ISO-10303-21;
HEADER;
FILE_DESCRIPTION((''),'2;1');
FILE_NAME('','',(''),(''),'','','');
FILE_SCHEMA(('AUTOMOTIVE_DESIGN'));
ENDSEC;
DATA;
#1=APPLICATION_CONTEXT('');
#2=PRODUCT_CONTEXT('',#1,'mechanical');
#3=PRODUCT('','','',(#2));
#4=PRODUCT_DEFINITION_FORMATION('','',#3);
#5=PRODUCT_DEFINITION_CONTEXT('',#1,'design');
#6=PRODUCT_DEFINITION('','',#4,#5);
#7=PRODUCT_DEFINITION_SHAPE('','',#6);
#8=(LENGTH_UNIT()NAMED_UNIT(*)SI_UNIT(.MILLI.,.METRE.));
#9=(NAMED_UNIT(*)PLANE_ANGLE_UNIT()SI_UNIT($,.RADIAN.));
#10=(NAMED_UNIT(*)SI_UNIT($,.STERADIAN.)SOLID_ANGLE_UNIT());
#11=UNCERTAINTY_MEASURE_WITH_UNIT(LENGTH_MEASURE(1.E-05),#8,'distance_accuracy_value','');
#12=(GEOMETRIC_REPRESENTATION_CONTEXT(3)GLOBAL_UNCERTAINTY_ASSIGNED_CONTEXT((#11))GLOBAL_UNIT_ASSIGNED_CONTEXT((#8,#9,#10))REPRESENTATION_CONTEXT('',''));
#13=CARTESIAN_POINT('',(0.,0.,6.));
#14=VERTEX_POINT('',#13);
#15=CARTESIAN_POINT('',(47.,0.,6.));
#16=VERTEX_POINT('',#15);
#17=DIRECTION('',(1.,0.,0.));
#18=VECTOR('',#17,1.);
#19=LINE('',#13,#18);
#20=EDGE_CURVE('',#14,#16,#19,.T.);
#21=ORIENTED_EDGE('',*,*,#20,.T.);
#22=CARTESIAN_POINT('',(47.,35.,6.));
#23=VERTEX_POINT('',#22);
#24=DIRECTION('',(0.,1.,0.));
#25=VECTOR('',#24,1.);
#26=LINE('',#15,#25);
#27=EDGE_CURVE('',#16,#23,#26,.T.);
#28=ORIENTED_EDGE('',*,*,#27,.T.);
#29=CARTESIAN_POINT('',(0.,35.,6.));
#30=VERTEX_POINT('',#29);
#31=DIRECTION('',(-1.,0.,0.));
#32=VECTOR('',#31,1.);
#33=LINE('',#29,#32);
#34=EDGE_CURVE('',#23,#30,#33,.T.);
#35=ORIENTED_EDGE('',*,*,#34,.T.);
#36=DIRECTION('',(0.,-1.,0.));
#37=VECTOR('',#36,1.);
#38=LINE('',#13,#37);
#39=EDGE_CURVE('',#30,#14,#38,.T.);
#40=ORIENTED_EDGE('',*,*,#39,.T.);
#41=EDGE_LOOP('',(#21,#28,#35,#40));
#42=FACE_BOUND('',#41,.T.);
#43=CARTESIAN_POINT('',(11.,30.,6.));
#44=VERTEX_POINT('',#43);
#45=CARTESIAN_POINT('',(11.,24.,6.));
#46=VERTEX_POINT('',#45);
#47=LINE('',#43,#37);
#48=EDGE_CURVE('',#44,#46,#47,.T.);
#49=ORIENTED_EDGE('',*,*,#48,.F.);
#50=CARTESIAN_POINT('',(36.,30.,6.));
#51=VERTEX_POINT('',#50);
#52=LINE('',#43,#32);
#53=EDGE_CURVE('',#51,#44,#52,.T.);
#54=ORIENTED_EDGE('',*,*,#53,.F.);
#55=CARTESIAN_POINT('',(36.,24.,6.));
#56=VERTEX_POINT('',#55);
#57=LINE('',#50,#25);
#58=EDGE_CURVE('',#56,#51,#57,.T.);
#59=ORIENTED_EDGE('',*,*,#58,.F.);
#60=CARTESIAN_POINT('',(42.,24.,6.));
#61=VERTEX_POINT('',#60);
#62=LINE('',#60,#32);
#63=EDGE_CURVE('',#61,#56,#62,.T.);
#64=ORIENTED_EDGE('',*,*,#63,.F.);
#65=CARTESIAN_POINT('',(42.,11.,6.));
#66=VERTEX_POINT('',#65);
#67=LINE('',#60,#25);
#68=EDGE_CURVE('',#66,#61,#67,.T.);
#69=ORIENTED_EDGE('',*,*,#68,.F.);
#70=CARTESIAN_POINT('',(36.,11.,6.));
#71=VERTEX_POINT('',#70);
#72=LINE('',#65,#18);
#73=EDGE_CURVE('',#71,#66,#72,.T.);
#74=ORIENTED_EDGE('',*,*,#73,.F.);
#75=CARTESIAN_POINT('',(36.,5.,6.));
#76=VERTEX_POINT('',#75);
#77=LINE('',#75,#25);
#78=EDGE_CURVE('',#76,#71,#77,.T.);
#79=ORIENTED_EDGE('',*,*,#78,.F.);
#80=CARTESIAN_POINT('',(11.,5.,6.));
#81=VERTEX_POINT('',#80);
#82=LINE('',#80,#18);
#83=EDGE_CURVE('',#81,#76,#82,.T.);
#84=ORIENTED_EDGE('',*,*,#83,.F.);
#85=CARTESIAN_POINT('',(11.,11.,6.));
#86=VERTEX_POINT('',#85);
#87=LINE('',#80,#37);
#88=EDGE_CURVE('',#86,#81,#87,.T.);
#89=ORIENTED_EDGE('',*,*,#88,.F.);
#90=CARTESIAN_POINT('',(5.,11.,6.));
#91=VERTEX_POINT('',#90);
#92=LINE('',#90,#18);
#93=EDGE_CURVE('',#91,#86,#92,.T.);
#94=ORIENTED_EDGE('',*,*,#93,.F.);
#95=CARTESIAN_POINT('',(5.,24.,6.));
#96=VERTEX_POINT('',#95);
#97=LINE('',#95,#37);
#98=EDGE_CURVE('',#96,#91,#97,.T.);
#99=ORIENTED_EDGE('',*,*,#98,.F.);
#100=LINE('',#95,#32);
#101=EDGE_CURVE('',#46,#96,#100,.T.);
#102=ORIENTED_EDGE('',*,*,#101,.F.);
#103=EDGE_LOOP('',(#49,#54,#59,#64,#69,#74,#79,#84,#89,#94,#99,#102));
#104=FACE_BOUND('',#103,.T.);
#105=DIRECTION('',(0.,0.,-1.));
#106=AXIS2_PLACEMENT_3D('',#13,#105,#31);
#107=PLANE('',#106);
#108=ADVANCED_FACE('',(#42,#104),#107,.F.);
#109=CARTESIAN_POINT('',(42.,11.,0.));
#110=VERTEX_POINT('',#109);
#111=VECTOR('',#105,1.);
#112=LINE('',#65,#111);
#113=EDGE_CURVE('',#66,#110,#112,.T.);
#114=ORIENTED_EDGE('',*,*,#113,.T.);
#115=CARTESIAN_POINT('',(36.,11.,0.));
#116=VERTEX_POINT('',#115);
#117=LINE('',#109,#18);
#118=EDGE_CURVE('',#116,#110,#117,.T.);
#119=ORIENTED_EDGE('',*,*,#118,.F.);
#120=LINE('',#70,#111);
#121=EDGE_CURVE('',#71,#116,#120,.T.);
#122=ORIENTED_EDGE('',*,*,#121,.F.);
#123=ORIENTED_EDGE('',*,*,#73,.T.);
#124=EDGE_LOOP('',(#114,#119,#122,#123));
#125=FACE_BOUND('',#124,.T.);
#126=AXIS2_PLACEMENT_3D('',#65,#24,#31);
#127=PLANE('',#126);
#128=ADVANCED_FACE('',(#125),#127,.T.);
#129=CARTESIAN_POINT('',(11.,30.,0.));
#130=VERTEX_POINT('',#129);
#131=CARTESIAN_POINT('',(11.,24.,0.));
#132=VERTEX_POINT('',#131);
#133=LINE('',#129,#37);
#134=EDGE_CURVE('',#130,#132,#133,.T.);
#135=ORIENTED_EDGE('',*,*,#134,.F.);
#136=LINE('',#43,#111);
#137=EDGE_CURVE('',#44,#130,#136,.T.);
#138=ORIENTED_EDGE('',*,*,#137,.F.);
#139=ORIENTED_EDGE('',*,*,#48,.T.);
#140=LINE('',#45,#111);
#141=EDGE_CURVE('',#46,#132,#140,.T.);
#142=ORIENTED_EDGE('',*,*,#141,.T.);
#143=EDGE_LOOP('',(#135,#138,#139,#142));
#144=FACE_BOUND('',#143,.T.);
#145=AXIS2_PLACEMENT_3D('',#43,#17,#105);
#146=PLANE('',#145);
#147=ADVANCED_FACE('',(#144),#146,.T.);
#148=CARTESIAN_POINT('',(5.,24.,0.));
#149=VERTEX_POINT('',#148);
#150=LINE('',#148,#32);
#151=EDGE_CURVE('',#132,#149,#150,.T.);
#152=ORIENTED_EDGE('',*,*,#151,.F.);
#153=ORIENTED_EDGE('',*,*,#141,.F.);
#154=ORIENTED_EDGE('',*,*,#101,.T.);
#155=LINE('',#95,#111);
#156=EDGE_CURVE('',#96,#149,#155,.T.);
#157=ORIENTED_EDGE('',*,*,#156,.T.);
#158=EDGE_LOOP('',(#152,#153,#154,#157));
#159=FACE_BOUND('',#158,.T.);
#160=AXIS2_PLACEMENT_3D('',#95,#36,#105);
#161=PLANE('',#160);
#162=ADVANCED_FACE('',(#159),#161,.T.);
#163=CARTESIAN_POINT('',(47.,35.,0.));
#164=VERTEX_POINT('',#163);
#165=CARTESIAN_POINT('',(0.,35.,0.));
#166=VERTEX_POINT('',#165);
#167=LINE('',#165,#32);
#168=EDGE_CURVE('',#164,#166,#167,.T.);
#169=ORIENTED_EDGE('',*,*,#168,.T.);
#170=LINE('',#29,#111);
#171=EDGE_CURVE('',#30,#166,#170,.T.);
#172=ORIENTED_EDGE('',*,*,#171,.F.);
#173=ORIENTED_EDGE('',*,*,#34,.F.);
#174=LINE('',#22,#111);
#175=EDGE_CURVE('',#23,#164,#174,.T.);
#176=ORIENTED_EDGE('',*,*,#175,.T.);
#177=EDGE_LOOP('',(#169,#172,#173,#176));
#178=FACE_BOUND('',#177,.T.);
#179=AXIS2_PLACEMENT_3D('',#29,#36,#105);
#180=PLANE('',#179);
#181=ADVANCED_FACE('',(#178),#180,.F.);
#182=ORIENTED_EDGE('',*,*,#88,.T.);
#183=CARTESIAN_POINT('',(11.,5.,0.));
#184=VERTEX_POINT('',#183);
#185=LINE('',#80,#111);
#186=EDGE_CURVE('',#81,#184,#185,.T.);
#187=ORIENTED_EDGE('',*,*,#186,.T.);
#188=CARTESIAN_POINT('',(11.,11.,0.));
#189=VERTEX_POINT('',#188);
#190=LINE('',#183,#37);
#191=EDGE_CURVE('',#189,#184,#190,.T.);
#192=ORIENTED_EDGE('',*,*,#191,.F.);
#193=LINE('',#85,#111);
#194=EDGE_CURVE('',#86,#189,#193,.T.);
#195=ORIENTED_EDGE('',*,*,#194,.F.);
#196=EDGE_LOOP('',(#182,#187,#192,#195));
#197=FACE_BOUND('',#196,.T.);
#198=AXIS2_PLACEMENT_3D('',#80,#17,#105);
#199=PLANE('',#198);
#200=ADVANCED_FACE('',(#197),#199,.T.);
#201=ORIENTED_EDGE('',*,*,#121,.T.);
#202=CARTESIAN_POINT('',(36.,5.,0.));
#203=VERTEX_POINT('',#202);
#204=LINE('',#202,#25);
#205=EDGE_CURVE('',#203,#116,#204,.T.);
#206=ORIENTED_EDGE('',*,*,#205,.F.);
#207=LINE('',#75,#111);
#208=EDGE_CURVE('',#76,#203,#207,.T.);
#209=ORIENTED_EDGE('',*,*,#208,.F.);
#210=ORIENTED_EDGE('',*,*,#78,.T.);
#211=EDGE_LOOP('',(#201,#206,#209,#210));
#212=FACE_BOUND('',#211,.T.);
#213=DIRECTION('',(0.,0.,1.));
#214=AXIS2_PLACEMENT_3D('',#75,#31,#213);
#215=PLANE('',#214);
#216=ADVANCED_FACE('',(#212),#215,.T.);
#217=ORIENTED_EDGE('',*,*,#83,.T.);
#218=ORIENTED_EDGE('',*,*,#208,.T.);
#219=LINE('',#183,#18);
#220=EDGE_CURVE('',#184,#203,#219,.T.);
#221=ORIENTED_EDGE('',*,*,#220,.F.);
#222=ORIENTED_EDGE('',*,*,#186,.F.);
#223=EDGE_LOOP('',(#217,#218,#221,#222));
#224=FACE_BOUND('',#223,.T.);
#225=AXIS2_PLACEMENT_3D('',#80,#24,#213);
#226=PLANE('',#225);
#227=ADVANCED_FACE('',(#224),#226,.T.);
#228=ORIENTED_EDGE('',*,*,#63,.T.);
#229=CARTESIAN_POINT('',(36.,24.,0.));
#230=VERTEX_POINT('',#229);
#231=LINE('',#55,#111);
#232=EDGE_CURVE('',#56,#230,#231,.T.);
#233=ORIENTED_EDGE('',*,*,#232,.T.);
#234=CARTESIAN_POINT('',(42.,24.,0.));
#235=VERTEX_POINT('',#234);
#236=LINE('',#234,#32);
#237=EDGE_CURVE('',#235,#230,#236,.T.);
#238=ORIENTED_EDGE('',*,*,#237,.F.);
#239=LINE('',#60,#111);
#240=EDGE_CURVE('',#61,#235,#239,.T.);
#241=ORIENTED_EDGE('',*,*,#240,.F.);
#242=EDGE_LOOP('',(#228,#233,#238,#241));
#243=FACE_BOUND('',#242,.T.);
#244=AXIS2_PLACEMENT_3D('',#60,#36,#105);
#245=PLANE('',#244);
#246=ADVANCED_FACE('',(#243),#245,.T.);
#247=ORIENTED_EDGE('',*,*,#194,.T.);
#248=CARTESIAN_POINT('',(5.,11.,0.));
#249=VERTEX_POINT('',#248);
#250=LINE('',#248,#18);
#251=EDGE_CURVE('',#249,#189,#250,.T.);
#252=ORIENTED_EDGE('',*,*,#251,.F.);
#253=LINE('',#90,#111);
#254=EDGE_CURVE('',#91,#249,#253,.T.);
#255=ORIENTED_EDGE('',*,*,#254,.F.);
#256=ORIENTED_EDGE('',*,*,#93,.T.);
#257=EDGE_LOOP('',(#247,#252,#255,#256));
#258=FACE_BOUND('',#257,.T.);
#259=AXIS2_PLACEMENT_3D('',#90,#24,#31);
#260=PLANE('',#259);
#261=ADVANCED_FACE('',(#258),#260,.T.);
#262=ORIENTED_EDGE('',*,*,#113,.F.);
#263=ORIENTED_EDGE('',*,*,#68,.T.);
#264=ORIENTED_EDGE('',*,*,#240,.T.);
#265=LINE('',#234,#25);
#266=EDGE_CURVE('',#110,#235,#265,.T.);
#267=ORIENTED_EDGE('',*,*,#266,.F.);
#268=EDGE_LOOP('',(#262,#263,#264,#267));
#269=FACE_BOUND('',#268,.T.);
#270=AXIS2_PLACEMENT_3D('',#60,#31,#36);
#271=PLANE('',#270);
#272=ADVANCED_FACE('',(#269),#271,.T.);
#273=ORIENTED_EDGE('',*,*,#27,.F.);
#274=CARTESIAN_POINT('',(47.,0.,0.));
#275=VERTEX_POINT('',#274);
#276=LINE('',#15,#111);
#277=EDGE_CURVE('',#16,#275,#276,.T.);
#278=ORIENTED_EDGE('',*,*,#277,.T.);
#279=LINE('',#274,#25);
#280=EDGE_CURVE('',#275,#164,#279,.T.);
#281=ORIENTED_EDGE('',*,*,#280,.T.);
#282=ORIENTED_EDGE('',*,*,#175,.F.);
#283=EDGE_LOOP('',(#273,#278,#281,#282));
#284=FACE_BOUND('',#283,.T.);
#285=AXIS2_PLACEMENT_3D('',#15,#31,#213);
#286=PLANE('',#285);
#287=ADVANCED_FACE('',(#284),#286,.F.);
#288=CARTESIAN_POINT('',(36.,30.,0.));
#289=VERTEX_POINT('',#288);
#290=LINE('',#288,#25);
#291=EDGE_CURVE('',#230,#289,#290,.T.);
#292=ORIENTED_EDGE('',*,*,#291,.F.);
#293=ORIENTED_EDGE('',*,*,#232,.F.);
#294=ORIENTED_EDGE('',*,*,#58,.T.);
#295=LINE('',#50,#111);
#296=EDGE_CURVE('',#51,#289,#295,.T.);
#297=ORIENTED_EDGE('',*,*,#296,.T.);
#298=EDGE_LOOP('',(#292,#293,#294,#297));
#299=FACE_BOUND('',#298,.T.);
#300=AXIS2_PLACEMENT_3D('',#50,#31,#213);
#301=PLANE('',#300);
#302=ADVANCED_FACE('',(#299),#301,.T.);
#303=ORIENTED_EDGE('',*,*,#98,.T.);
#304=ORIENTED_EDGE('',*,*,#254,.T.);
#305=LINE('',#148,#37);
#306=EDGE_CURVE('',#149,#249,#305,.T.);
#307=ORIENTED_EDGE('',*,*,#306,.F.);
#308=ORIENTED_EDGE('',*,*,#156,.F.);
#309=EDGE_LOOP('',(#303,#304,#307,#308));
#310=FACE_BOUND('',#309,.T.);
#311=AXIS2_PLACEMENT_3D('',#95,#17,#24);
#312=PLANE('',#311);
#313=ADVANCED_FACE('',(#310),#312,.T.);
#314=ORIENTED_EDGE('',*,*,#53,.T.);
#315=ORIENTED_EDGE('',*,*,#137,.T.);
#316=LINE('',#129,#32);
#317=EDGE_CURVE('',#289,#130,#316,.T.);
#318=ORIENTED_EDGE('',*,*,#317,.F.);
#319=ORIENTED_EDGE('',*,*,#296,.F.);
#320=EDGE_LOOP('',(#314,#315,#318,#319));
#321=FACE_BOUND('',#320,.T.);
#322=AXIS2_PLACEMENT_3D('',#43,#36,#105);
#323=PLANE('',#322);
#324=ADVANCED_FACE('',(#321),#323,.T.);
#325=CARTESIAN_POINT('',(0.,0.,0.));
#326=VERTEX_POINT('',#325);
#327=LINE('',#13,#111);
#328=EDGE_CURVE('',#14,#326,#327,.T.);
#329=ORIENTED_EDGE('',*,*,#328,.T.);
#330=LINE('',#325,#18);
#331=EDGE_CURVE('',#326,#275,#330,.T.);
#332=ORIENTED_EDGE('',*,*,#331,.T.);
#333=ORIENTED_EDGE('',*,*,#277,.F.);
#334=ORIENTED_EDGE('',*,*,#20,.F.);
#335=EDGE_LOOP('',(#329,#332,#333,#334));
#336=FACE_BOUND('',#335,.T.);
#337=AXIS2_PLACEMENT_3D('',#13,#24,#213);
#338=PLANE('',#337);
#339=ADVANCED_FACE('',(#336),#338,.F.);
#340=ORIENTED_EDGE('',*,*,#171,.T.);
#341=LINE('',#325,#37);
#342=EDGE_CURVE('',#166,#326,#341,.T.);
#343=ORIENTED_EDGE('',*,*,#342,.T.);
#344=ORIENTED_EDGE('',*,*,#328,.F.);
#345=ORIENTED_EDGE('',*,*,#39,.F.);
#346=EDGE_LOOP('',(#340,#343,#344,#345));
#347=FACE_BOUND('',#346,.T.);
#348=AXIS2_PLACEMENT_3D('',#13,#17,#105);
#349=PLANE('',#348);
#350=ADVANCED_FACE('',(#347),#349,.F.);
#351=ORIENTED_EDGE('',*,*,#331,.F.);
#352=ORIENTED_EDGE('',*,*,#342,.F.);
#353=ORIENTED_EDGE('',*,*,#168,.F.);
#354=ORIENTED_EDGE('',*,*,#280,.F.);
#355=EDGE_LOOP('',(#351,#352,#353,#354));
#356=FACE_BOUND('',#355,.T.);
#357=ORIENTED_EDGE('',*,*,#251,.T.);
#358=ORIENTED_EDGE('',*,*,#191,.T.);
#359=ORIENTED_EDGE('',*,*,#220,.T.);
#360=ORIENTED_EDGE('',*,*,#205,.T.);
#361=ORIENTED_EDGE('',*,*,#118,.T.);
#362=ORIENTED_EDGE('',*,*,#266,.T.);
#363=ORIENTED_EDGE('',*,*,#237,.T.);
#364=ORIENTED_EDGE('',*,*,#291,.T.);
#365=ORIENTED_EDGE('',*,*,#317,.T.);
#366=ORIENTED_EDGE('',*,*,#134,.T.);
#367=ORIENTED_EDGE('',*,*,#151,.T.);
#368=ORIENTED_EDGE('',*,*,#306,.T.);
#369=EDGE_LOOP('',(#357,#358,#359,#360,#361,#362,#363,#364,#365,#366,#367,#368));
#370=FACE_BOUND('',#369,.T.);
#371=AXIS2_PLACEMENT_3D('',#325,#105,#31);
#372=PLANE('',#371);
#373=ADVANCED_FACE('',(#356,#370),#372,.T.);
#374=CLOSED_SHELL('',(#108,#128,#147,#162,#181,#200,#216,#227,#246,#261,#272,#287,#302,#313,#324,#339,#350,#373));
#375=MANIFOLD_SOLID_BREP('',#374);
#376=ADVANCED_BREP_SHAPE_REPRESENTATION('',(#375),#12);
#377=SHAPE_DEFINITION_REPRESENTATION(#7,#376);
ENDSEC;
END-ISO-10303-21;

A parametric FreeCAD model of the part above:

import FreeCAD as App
import Part
import Sketcher

V = App.Vector

doc = App.newDocument("Part")
body = doc.addObject("PartDesign::Body", "Body")

sketch1 = body.newObject("Sketcher::SketchObject", "Sketch")
sketch1.AttachmentSupport = (doc.getObject("XY_Plane"), [""])
sketch1.MapMode = "FlatFace"
sketch1.addGeometry([
    Part.LineSegment(V(0, 35, 0), V(0, 0, 0)),
    Part.LineSegment(V(0, 0, 0), V(47, 0, 0)),
    Part.LineSegment(V(47, 0, 0), V(47, 35, 0)),
    Part.LineSegment(V(47, 35, 0), V(0, 35, 0)),
    Part.LineSegment(V(11, 24, 0), V(11, 30, 0)),
    Part.LineSegment(V(11, 30, 0), V(36, 30, 0)),
    Part.LineSegment(V(36, 30, 0), V(36, 24, 0)),
    Part.LineSegment(V(36, 24, 0), V(42, 24, 0)),
    Part.LineSegment(V(42, 24, 0), V(42, 11, 0)),
    Part.LineSegment(V(42, 11, 0), V(36, 11, 0)),
    Part.LineSegment(V(36, 11, 0), V(36, 5, 0)),
    Part.LineSegment(V(36, 5, 0), V(11, 5, 0)),
    Part.LineSegment(V(11, 5, 0), V(11, 11, 0)),
    Part.LineSegment(V(11, 11, 0), V(5, 11, 0)),
    Part.LineSegment(V(5, 11, 0), V(5, 24, 0)),
    Part.LineSegment(V(5, 24, 0), V(11, 24, 0)),
], False)
sketch1.addConstraint([
    Sketcher.Constraint("Coincident", 0, 2, 1, 1),
    Sketcher.Constraint("Coincident", 1, 2, 2, 1),
    Sketcher.Constraint("Coincident", 2, 2, 3, 1),
    Sketcher.Constraint("Coincident", 3, 2, 0, 1),
    Sketcher.Constraint("Coincident", 4, 2, 5, 1),
    Sketcher.Constraint("Coincident", 5, 2, 6, 1),
    Sketcher.Constraint("Coincident", 6, 2, 7, 1),
    Sketcher.Constraint("Coincident", 7, 2, 8, 1),
    Sketcher.Constraint("Coincident", 8, 2, 9, 1),
    Sketcher.Constraint("Coincident", 9, 2, 10, 1),
    Sketcher.Constraint("Coincident", 10, 2, 11, 1),
    Sketcher.Constraint("Coincident", 11, 2, 12, 1),
    Sketcher.Constraint("Coincident", 12, 2, 13, 1),
    Sketcher.Constraint("Coincident", 13, 2, 14, 1),
    Sketcher.Constraint("Coincident", 14, 2, 15, 1),
    Sketcher.Constraint("Coincident", 15, 2, 4, 1),
    Sketcher.Constraint("Vertical", 0),
    Sketcher.Constraint("Horizontal", 1),
    Sketcher.Constraint("Vertical", 2),
    Sketcher.Constraint("Horizontal", 3),
    Sketcher.Constraint("Vertical", 4),
    Sketcher.Constraint("Horizontal", 5),
    Sketcher.Constraint("Vertical", 6),
    Sketcher.Constraint("Horizontal", 7),
    Sketcher.Constraint("Vertical", 8),
    Sketcher.Constraint("Horizontal", 9),
    Sketcher.Constraint("Vertical", 10),
    Sketcher.Constraint("Horizontal", 11),
    Sketcher.Constraint("Vertical", 12),
    Sketcher.Constraint("Horizontal", 13),
    Sketcher.Constraint("Vertical", 14),
    Sketcher.Constraint("Horizontal", 15),
    Sketcher.Constraint("Coincident", 0, 2, -1, 1),
    Sketcher.Constraint("Horizontal", 9, 2, 12, 2),
    Sketcher.Constraint("Horizontal", 7, 2, 14, 2),
    Sketcher.Constraint("Vertical", 6, 2, 9, 2),
    Sketcher.Constraint("Vertical", 4, 2, 11, 2),
    Sketcher.Constraint("Equal", 9, 13),
    Sketcher.Constraint("Equal", 15, 4),
    Sketcher.Constraint("Equal", 6, 10),
    Sketcher.Constraint("DistanceX", 1, 1, 1, 2, 47.0),
    Sketcher.Constraint("DistanceX", 5, 1, 5, 2, 25.0),
    Sketcher.Constraint("DistanceX", 7, 1, 7, 2, 6.0),
    Sketcher.Constraint("DistanceY", 0, 2, 0, 1, 35.0),
    Sketcher.Constraint("DistanceY", 8, 2, 8, 1, 13.0),
    Sketcher.Constraint("DistanceX", -1, 1, 4, 2, 11.0),
    Sketcher.Constraint("DistanceY", -1, 1, 4, 2, 30.0),
])
pad1 = body.newObject("PartDesign::Pad", "Pad")
pad1.Profile = sketch1
pad1.Length = 6

doc.recompute()
